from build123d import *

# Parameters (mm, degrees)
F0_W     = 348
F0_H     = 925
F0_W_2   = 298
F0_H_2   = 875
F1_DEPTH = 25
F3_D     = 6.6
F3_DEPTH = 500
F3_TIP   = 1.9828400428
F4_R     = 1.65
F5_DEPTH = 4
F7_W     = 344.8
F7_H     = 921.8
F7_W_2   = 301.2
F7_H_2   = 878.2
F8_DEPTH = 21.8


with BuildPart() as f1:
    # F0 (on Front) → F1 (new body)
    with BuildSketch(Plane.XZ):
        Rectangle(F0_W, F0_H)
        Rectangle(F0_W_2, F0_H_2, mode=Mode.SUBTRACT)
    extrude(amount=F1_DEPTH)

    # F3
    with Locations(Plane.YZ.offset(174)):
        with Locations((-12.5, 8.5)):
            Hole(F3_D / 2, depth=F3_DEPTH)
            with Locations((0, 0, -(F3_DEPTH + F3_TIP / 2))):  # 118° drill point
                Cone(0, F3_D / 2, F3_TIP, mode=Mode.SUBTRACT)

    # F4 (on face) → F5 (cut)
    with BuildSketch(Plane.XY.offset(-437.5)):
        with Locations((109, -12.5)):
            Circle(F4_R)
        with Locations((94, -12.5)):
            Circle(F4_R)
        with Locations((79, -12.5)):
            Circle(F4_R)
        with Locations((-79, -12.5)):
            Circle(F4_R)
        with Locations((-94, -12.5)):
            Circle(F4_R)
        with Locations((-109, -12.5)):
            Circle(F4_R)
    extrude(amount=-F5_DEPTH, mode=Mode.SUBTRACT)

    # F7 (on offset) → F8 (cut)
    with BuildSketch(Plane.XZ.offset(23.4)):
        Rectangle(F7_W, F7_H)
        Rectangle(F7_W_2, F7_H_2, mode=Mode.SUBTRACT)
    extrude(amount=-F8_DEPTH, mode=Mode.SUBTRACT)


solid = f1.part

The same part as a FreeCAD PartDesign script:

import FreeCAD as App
import Part
import Sketcher

doc = App.newDocument("Part")
body = doc.addObject("PartDesign::Body", "Body")

sketch1 = body.newObject("Sketcher::SketchObject", "Sketch")
sketch1.AttachmentSupport = (doc.getObject("XZ_Plane"), [""])
sketch1.MapMode = "FlatFace"
sketch1.addGeometry(Part.LineSegment(App.Vector(-174, 462, 0), App.Vector(-174, -462, 0)), False)
sketch1.addGeometry(Part.LineSegment(App.Vector(-174, -462, 0), App.Vector(174, -462, 0)), False)
sketch1.addGeometry(Part.LineSegment(App.Vector(174, -462, 0), App.Vector(174, 462, 0)), False)
sketch1.addGeometry(Part.LineSegment(App.Vector(174, 462, 0), App.Vector(-174, 462, 0)), False)
sketch1.addGeometry(Part.LineSegment(App.Vector(149, -438, 0), App.Vector(-149, -438, 0)), False)
sketch1.addGeometry(Part.LineSegment(App.Vector(-149, -438, 0), App.Vector(-149, 438, 0)), False)
sketch1.addGeometry(Part.LineSegment(App.Vector(-149, 438, 0), App.Vector(149, 438, 0)), False)
sketch1.addGeometry(Part.LineSegment(App.Vector(149, 438, 0), App.Vector(149, -438, 0)), False)
sketch1.addConstraint(Sketcher.Constraint("Coincident", 0, 2, 1, 1))
sketch1.addConstraint(Sketcher.Constraint("Coincident", 1, 2, 2, 1))
sketch1.addConstraint(Sketcher.Constraint("Coincident", 2, 2, 3, 1))
sketch1.addConstraint(Sketcher.Constraint("Coincident", 3, 2, 0, 1))
sketch1.addConstraint(Sketcher.Constraint("Coincident", 4, 2, 5, 1))
sketch1.addConstraint(Sketcher.Constraint("Coincident", 5, 2, 6, 1))
sketch1.addConstraint(Sketcher.Constraint("Coincident", 6, 2, 7, 1))
sketch1.addConstraint(Sketcher.Constraint("Coincident", 7, 2, 4, 1))
sketch1.addConstraint(Sketcher.Constraint("Vertical", 0))
sketch1.addConstraint(Sketcher.Constraint("Horizontal", 1))
sketch1.addConstraint(Sketcher.Constraint("Vertical", 2))
sketch1.addConstraint(Sketcher.Constraint("Horizontal", 3))
sketch1.addConstraint(Sketcher.Constraint("Horizontal", 4))
sketch1.addConstraint(Sketcher.Constraint("Vertical", 5))
sketch1.addConstraint(Sketcher.Constraint("Horizontal", 6))
sketch1.addConstraint(Sketcher.Constraint("Vertical", 7))
sketch1.addConstraint(Sketcher.Constraint("Symmetric", 0, 2, 2, 2, -1, 1))
sketch1.addConstraint(Sketcher.Constraint("Symmetric", 4, 2, 6, 2, -1, 1))
sketch1.addConstraint(Sketcher.Constraint("DistanceX", 1, 1, 1, 2, 348.0))
sketch1.addConstraint(Sketcher.Constraint("DistanceX", 4, 2, 4, 1, 298.0))
sketch1.addConstraint(Sketcher.Constraint("DistanceY", 0, 2, 0, 1, 925.0))
sketch1.addConstraint(Sketcher.Constraint("DistanceY", 5, 1, 5, 2, 875.0))
pad1 = body.newObject("PartDesign::Pad", "Pad")
pad1.Profile = sketch1
pad1.Length = 25

sketch2 = body.newObject("Sketcher::SketchObject", "Sketch001")
sketch2.AttachmentSupport = (doc.getObject("YZ_Plane"), [""])
sketch2.MapMode = "FlatFace"
sketch2.AttachmentOffset = App.Placement(App.Vector(0, 0, 174), App.Rotation())
sketch2.addGeometry(Part.Circle(App.Vector(-12.5, 8.5, 0), App.Vector(0, 0, 1), 3.3), False)
sketch2.addConstraint(Sketcher.Constraint("Diameter", 0, 6.6))
sketch2.addConstraint(Sketcher.Constraint("DistanceX", 0, 3, -1, 1, 12.5))
sketch2.addConstraint(Sketcher.Constraint("DistanceY", -1, 1, 0, 3, 8.5))
doc.recompute()
hole = body.newObject("PartDesign::Hole", "Hole")
hole.Profile = sketch2
hole.ThreadType = "None"
hole.Diameter = 6.6
hole.DepthType = "Dimension"
hole.Depth = 500
hole.DrillPoint = "Angled"
hole.DrillPointAngle = 118

sketch3 = body.newObject("Sketcher::SketchObject", "Sketch002")
sketch3.AttachmentSupport = (doc.getObject("XY_Plane"), [""])
sketch3.MapMode = "FlatFace"
sketch3.AttachmentOffset = App.Placement(App.Vector(0, 0, -437.5), App.Rotation())
sketch3.addGeometry(Part.Circle(App.Vector(109, -12.5, 0), App.Vector(0, 0, 1), 1.6), False)
sketch3.addGeometry(Part.Circle(App.Vector(94, -12.5, 0), App.Vector(0, 0, 1), 1.6), False)
sketch3.addGeometry(Part.Circle(App.Vector(79, -12.5, 0), App.Vector(0, 0, 1), 1.6), False)
sketch3.addGeometry(Part.Circle(App.Vector(-79, -12.5, 0), App.Vector(0, 0, 1), 1.6), False)
sketch3.addGeometry(Part.Circle(App.Vector(-94, -12.5, 0), App.Vector(0, 0, 1), 1.6), False)
sketch3.addGeometry(Part.Circle(App.Vector(-109, -12.5, 0), App.Vector(0, 0, 1), 1.6), False)
sketch3.addConstraint(Sketcher.Constraint("Equal", 0, 1))
sketch3.addConstraint(Sketcher.Constraint("Equal", 1, 2))
sketch3.addConstraint(Sketcher.Constraint("Equal", 2, 3))
sketch3.addConstraint(Sketcher.Constraint("Equal", 3, 4))
sketch3.addConstraint(Sketcher.Constraint("Equal", 4, 5))
sketch3.addConstraint(Sketcher.Constraint("Symmetric", 2, 3, 3, 3, -2))
sketch3.addConstraint(Sketcher.Constraint("Symmetric", 1, 3, 4, 3, -2))
sketch3.addConstraint(Sketcher.Constraint("Symmetric", 0, 3, 5, 3, -2))
sketch3.addConstraint(Sketcher.Constraint("Horizontal", 0, 3, 1, 3))
sketch3.addConstraint(Sketcher.Constraint("Horizontal", 1, 3, 2, 3))
sketch3.addConstraint(Sketcher.Constraint("Diameter", 0, 3.3))
sketch3.addConstraint(Sketcher.Constraint("DistanceX", -1, 1, 0, 3, 109.0))
sketch3.addConstraint(Sketcher.Constraint("DistanceX", -1, 1, 1, 3, 94.0))
sketch3.addConstraint(Sketcher.Constraint("DistanceX", -1, 1, 2, 3, 79.0))
sketch3.addConstraint(Sketcher.Constraint("DistanceY", 0, 3, -1, 1, 12.5))
pocket1 = body.newObject("PartDesign::Pocket", "Pocket")
pocket1.Profile = sketch3
pocket1.Length = 4

sketch4 = body.newObject("Sketcher::SketchObject", "Sketch003")
sketch4.AttachmentSupport = (doc.getObject("XZ_Plane"), [""])
sketch4.MapMode = "FlatFace"
sketch4.AttachmentOffset = App.Placement(App.Vector(0, 0, 23.4), App.Rotation())
sketch4.addGeometry(Part.LineSegment(App.Vector(-172, 461, 0), App.Vector(-172, -461, 0)), False)
sketch4.addGeometry(Part.LineSegment(App.Vector(-172, -461, 0), App.Vector(172, -461, 0)), False)
sketch4.addGeometry(Part.LineSegment(App.Vector(172, -461, 0), App.Vector(172, 461, 0)), False)
sketch4.addGeometry(Part.LineSegment(App.Vector(172, 461, 0), App.Vector(-172, 461, 0)), False)
sketch4.addGeometry(Part.LineSegment(App.Vector(151, -439, 0), App.Vector(-151, -439, 0)), False)
sketch4.addGeometry(Part.LineSegment(App.Vector(-151, -439, 0), App.Vector(-151, 439, 0)), False)
sketch4.addGeometry(Part.LineSegment(App.Vector(-151, 439, 0), App.Vector(151, 439, 0)), False)
sketch4.addGeometry(Part.LineSegment(App.Vector(151, 439, 0), App.Vector(151, -439, 0)), False)
sketch4.addConstraint(Sketcher.Constraint("Coincident", 0, 2, 1, 1))
sketch4.addConstraint(Sketcher.Constraint("Coincident", 1, 2, 2, 1))
sketch4.addConstraint(Sketcher.Constraint("Coincident", 2, 2, 3, 1))
sketch4.addConstraint(Sketcher.Constraint("Coincident", 3, 2, 0, 1))
sketch4.addConstraint(Sketcher.Constraint("Coincident", 4, 2, 5, 1))
sketch4.addConstraint(Sketcher.Constraint("Coincident", 5, 2, 6, 1))
sketch4.addConstraint(Sketcher.Constraint("Coincident", 6, 2, 7, 1))
sketch4.addConstraint(Sketcher.Constraint("Coincident", 7, 2, 4, 1))
sketch4.addConstraint(Sketcher.Constraint("Vertical", 0))
sketch4.addConstraint(Sketcher.Constraint("Horizontal", 1))
sketch4.addConstraint(Sketcher.Constraint("Vertical", 2))
sketch4.addConstraint(Sketcher.Constraint("Horizontal", 3))
sketch4.addConstraint(Sketcher.Constraint("Horizontal", 4))
sketch4.addConstraint(Sketcher.Constraint("Vertical", 5))
sketch4.addConstraint(Sketcher.Constraint("Horizontal", 6))
sketch4.addConstraint(Sketcher.Constraint("Vertical", 7))
sketch4.addConstraint(Sketcher.Constraint("Symmetric", 0, 2, 2, 2, -1, 1))
sketch4.addConstraint(Sketcher.Constraint("Symmetric", 4, 2, 6, 2, -1, 1))
sketch4.addConstraint(Sketcher.Constraint("DistanceX", 1, 1, 1, 2, 344.8))
sketch4.addConstraint(Sketcher.Constraint("DistanceX", 4, 2, 4, 1, 301.2))
sketch4.addConstraint(Sketcher.Constraint("DistanceY", 0, 2, 0, 1, 921.8))
sketch4.addConstraint(Sketcher.Constraint("DistanceY", 5, 1, 5, 2, 878.2))
pocket2 = body.newObject("PartDesign::Pocket", "Pocket001")
pocket2.Profile = sketch4
pocket2.Length = 21.8

doc.recompute()
